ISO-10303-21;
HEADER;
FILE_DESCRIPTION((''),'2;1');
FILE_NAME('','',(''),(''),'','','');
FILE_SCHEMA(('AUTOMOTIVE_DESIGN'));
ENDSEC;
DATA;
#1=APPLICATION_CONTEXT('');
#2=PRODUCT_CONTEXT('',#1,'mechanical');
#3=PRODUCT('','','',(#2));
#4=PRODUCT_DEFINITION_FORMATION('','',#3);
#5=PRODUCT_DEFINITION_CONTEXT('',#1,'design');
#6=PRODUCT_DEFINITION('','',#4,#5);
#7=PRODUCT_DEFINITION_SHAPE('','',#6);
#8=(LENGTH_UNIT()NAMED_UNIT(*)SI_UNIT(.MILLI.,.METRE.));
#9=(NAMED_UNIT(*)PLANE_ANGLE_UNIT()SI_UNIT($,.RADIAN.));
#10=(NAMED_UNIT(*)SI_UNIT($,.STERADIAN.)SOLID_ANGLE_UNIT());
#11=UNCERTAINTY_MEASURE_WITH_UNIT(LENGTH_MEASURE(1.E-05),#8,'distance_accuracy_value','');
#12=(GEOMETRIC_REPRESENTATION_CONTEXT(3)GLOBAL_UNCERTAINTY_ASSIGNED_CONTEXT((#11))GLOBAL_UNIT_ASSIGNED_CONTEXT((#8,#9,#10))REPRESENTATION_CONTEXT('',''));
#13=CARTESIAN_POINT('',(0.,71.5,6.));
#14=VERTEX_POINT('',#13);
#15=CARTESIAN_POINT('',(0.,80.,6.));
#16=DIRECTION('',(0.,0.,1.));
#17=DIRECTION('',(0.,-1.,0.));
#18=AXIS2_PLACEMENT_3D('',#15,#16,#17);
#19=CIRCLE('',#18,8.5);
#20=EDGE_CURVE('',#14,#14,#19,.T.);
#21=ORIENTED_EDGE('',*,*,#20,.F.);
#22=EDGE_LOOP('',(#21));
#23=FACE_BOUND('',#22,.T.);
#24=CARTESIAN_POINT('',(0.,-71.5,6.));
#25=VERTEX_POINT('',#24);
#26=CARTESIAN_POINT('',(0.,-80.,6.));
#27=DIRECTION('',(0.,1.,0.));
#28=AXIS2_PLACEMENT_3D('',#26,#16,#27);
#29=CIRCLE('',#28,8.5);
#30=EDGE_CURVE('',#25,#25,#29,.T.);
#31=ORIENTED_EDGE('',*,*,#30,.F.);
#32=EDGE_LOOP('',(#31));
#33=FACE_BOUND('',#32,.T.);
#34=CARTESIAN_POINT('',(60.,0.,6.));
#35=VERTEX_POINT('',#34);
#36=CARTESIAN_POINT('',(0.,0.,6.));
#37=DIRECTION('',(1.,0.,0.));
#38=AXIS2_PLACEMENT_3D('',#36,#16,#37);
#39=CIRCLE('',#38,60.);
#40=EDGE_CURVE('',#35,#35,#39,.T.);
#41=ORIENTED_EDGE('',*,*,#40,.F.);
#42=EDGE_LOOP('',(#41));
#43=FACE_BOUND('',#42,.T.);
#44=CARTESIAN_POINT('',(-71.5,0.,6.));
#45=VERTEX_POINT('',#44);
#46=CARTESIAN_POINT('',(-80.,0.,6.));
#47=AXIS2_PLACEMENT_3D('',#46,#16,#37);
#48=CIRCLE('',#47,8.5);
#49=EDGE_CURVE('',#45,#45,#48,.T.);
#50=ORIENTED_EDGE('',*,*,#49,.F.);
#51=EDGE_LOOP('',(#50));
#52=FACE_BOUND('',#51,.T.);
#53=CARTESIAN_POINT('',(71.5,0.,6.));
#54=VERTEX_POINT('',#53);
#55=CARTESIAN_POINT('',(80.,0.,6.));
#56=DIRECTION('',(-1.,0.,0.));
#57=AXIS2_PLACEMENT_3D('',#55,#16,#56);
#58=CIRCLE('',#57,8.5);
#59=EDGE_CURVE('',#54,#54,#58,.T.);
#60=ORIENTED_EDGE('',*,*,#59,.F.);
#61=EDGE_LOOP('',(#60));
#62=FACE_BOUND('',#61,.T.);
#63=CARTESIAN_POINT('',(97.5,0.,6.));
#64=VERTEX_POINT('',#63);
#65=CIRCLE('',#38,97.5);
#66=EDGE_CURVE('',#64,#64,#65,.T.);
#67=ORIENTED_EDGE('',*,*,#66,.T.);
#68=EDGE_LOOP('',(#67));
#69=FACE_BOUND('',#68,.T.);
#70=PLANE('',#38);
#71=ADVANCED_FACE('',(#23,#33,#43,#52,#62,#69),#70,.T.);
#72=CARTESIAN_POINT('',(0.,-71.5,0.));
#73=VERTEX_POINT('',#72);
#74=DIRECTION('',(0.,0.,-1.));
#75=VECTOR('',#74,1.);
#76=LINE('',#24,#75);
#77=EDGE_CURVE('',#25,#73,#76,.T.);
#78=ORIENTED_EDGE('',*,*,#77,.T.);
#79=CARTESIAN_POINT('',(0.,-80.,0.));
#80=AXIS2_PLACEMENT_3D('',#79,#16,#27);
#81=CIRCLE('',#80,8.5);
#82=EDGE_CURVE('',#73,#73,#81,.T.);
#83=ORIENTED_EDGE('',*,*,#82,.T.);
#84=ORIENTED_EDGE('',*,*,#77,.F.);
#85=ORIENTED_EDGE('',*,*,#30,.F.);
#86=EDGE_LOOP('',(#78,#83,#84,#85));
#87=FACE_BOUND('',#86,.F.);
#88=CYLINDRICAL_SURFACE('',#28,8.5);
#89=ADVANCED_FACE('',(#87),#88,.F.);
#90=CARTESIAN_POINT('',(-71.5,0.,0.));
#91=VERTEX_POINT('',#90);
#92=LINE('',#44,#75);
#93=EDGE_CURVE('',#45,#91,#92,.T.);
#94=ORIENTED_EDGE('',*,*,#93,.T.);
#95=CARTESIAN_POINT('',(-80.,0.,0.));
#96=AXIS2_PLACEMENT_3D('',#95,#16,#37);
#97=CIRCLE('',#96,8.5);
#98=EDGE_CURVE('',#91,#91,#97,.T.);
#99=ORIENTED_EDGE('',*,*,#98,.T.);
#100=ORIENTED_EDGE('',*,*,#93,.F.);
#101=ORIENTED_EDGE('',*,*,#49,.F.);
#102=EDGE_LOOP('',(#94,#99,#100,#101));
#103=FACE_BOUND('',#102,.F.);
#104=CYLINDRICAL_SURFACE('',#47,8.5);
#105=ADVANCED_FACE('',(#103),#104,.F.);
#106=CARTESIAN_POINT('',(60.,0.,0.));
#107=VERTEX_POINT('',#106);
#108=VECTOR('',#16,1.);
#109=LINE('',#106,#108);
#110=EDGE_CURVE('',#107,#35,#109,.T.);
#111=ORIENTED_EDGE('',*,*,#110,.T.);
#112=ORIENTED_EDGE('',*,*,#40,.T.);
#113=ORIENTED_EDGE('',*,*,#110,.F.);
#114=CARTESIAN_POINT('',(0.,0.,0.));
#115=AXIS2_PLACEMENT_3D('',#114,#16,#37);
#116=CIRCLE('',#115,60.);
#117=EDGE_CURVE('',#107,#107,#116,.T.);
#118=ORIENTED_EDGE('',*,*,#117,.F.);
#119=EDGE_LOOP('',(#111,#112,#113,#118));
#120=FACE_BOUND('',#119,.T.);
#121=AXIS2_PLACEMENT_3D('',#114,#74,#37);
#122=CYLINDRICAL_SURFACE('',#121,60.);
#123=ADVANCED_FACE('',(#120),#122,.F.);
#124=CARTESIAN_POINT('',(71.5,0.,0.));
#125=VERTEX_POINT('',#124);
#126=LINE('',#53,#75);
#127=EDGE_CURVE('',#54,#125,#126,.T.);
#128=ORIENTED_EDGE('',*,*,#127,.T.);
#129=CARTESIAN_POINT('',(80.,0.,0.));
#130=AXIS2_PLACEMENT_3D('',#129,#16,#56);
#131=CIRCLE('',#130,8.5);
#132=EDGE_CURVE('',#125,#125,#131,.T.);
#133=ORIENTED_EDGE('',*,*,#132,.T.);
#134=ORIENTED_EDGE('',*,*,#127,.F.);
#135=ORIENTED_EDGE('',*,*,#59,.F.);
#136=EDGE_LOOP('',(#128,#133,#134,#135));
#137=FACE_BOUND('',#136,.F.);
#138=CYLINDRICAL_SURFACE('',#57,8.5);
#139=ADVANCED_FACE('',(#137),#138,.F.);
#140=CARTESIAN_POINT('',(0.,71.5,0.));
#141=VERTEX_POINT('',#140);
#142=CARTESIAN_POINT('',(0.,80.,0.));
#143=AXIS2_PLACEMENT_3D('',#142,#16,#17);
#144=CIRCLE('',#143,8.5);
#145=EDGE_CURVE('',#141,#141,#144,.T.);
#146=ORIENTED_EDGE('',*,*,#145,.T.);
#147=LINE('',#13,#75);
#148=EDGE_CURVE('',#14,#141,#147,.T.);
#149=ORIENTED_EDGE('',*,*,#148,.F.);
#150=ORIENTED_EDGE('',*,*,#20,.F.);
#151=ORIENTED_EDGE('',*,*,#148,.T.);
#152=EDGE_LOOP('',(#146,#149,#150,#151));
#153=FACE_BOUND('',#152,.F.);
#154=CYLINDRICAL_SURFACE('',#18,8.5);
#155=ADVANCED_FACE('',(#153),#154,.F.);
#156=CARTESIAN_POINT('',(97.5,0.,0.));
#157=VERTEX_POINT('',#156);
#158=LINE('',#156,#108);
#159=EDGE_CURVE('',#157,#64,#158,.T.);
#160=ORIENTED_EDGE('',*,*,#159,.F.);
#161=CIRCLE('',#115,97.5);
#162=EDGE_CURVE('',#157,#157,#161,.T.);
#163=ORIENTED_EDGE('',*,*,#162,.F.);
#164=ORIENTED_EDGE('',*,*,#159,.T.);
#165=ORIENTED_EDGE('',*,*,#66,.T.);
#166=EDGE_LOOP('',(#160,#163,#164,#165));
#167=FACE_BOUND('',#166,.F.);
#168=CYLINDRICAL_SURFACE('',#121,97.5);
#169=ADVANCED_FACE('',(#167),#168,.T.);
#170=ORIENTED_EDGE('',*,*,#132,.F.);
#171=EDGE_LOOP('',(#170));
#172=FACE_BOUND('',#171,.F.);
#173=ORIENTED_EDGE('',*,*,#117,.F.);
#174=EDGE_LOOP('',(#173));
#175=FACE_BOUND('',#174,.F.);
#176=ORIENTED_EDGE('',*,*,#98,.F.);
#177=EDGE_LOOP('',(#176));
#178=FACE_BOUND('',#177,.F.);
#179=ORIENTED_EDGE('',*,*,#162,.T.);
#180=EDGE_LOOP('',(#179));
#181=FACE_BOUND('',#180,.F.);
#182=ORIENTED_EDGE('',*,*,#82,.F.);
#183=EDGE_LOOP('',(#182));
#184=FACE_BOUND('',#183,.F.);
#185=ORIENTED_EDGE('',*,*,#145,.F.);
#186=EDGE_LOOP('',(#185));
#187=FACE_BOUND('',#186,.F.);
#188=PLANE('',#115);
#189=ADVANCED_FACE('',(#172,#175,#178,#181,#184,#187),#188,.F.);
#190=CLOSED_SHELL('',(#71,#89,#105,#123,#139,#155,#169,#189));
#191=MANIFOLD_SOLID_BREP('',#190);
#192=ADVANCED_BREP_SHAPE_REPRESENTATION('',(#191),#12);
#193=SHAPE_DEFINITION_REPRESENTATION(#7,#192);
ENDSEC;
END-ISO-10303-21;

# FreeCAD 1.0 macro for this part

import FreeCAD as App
import Part
import Sketcher
from FreeCAD import Vector

doc = App.newDocument("Part")
body = doc.addObject("PartDesign::Body", "Body")

sketch1 = body.newObject("Sketcher::SketchObject", "Sketch")
sketch1.AttachmentSupport = (doc.getObject("XY_Plane"), [""])
sketch1.MapMode = "FlatFace"
sketch1.addGeometry([
    Part.Circle(Vector(0, 0, 0), Vector(0, 0, 1), 98),
    Part.Circle(Vector(0, 0, 0), Vector(0, 0, 1), 60),
], False)
sketch1.addConstraint([
    Sketcher.Constraint("Coincident", 0, 3, -1, 1),
    Sketcher.Constraint("Coincident", 1, 3, -1, 1),
    Sketcher.Constraint("Diameter", 0, 195.0),
    Sketcher.Constraint("Diameter", 1, 120.0),
])
pad1 = body.newObject("PartDesign::Pad", "Pad")
pad1.Profile = sketch1
pad1.Length = 6

sketch2 = body.newObject("Sketcher::SketchObject", "Sketch001")
sketch2.AttachmentSupport = (doc.getObject("XY_Plane"), [""])
sketch2.MapMode = "FlatFace"
sketch2.AttachmentOffset = App.Placement(Vector(0, 0, 6), App.Rotation())
sketch2.addGeometry(Part.Circle(Vector(-80, 0, 0), Vector(0, 0, 1), 8), False)
sketch2.addConstraint([
    Sketcher.Constraint("PointOnObject", 0, 3, -1),
    Sketcher.Constraint("Diameter", 0, 17.0),
    Sketcher.Constraint("DistanceX", 0, 3, -1, 1, 80.0),
])
pocket1 = body.newObject("PartDesign::Pocket", "Pocket")
pocket1.Profile = sketch2
pocket1.Length = 6
doc.recompute()

polarpattern = body.newObject("PartDesign::PolarPattern", "PolarPattern")
polarpattern.Originals = [pocket1]
polarpattern.Axis = (doc.getObject("Z_Axis"), [""])
polarpattern.Angle = 360
polarpattern.Occurrences = 4
body.Tip = polarpattern

doc.recompute()
